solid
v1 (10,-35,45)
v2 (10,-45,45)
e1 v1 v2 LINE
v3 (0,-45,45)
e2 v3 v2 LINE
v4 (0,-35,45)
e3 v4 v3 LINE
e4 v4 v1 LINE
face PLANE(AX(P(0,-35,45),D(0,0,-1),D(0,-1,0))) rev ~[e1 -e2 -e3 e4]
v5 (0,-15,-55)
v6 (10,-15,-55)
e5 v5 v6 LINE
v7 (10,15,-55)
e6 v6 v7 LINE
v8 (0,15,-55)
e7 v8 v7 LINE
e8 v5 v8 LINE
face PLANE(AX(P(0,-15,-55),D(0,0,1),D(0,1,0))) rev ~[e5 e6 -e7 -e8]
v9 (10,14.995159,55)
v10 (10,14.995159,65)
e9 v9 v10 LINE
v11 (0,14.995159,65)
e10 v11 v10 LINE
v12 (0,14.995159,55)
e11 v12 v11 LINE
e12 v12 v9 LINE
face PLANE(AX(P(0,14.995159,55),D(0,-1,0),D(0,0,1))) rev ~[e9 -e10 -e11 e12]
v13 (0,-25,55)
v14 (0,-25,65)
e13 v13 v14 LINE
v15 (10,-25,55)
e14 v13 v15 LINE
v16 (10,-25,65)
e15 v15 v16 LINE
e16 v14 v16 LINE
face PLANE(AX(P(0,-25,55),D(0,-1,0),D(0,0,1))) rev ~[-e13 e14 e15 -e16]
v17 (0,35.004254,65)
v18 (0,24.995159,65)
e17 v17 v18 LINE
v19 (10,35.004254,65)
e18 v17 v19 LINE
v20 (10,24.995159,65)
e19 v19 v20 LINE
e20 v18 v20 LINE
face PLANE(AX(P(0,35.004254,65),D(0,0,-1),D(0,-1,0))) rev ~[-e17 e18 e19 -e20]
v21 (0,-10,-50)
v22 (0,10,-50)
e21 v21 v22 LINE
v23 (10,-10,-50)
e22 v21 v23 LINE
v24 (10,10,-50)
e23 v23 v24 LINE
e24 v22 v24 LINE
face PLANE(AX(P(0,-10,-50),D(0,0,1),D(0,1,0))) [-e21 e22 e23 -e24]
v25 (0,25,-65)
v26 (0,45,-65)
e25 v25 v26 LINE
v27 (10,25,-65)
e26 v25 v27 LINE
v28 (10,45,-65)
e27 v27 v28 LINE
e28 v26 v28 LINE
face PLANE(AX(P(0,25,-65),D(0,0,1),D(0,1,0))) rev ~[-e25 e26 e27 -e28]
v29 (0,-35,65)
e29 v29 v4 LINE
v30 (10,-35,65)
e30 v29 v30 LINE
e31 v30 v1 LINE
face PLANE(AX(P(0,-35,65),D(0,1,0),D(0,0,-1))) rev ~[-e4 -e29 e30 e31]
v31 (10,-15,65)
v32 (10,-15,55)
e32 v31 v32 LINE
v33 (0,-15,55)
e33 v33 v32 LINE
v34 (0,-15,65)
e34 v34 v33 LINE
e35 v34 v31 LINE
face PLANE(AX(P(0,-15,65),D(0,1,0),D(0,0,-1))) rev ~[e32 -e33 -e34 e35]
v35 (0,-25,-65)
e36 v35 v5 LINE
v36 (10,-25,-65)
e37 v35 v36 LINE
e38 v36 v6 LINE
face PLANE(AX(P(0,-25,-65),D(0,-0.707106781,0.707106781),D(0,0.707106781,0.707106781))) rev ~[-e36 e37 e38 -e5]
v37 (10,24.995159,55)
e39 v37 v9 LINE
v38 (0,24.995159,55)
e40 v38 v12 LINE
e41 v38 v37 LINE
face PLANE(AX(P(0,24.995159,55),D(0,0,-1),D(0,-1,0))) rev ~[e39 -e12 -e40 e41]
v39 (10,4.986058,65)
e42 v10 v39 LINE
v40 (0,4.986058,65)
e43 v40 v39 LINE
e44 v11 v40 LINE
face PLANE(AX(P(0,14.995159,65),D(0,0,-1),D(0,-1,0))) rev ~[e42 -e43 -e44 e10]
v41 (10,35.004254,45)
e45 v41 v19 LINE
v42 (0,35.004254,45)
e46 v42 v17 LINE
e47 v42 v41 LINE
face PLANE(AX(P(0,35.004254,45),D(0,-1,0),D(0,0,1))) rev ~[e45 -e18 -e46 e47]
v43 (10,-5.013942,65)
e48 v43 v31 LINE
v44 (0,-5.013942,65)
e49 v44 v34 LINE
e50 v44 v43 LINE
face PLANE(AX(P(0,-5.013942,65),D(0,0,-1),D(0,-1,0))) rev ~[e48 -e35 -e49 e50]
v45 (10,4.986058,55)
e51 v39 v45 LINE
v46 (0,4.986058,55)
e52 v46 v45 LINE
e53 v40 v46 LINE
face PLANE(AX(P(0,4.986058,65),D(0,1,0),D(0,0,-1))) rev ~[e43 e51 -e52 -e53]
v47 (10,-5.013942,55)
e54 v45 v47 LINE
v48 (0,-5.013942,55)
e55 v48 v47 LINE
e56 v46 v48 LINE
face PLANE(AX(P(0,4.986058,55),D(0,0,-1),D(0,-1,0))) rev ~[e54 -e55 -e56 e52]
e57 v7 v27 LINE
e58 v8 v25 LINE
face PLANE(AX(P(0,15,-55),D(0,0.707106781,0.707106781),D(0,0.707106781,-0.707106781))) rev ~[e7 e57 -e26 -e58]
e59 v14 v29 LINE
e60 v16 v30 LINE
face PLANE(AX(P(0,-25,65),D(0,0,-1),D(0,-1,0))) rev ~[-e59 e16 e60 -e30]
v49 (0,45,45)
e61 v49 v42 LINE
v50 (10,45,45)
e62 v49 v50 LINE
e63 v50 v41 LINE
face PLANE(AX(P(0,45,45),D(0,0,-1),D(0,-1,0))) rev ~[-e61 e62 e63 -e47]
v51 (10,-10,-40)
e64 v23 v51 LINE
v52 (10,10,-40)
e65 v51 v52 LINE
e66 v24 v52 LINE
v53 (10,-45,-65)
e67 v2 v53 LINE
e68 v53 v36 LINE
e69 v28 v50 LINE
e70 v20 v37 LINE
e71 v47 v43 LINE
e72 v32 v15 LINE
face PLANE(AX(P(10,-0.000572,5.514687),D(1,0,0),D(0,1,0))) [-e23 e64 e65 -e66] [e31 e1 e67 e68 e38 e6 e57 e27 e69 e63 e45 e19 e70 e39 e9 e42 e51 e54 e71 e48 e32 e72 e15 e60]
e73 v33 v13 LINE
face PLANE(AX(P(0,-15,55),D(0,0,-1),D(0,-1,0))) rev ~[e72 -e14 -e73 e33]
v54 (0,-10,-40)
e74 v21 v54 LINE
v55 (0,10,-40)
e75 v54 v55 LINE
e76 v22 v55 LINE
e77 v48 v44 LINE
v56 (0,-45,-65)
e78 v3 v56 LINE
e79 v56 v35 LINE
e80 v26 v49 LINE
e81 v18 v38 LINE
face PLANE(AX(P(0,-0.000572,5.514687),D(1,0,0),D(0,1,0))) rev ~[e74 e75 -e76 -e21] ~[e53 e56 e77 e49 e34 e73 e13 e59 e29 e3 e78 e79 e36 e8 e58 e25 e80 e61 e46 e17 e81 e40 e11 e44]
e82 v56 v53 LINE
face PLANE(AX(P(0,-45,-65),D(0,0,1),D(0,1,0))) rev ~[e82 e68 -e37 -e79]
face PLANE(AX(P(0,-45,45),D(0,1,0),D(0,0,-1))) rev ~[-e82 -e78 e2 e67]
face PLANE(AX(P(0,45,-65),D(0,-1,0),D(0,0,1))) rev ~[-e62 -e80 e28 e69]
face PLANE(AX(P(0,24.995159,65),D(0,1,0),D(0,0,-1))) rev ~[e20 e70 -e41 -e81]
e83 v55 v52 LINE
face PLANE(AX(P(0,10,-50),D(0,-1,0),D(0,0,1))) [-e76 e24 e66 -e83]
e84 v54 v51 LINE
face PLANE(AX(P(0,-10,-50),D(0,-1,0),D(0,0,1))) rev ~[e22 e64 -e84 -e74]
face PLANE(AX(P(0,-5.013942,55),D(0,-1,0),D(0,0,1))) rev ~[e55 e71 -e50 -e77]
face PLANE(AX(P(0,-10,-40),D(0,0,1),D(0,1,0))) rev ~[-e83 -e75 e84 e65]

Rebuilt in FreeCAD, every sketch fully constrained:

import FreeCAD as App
import Part
import Sketcher
from FreeCAD import Vector

doc = App.newDocument("Part")
params = doc.addObject("Spreadsheet::Sheet", "Params")
for row, (alias, value) in enumerate([
    ("sketch1_width", "20 mm"),
    ("sketch1_width2", "30 mm"),
    ("sketch1_height", "110 mm"),
    ("pad1_length", "10 mm"),
], start=1):
    params.set(f"A{row}", alias)
    params.set(f"B{row}", "=" + value)
    params.setAlias(f"B{row}", alias)

body = doc.addObject("PartDesign::Body", "Body")

sketch1 = doc.addObject("Sketcher::SketchObject", "Sketch")
body.addObject(sketch1)
sketch1.AttachmentSupport = (doc.YZ_Plane, [""])
sketch1.MapMode = "FlatFace"
sketch1.addGeometry([
    Part.LineSegment(Vector(25, -65, 0), Vector(45, -65, 0)),
    Part.LineSegment(Vector(45, -65, 0), Vector(45, 45, 0)),
    Part.LineSegment(Vector(45, 45, 0), Vector(35, 45, 0)),
    Part.LineSegment(Vector(35, 45, 0), Vector(35, 65, 0)),
    Part.LineSegment(Vector(35, 65, 0), Vector(25, 65, 0)),
    Part.LineSegment(Vector(25, 65, 0), Vector(25, 55, 0)),
    Part.LineSegment(Vector(25, 55, 0), Vector(15, 55, 0)),
    Part.LineSegment(Vector(15, 55, 0), Vector(15, 65, 0)),
    Part.LineSegment(Vector(15, 65, 0), Vector(5, 65, 0)),
    Part.LineSegment(Vector(5, 65, 0), Vector(5, 55, 0)),
    Part.LineSegment(Vector(5, 55, 0), Vector(-5, 55, 0)),
    Part.LineSegment(Vector(-5, 55, 0), Vector(-5, 65, 0)),
    Part.LineSegment(Vector(-5, 65, 0), Vector(-15, 65, 0)),
    Part.LineSegment(Vector(-15, 65, 0), Vector(-15, 55, 0)),
    Part.LineSegment(Vector(-15, 55, 0), Vector(-25, 55, 0)),
    Part.LineSegment(Vector(-25, 55, 0), Vector(-25, 65, 0)),
    Part.LineSegment(Vector(-25, 65, 0), Vector(-35, 65, 0)),
    Part.LineSegment(Vector(-35, 65, 0), Vector(-35, 45, 0)),
    Part.LineSegment(Vector(-35, 45, 0), Vector(-45, 45, 0)),
    Part.LineSegment(Vector(-45, 45, 0), Vector(-45, -65, 0)),
    Part.LineSegment(Vector(-45, -65, 0), Vector(-25, -65, 0)),
    Part.LineSegment(Vector(-25, -65, 0), Vector(-15, -55, 0)),
    Part.LineSegment(Vector(-15, -55, 0), Vector(15, -55, 0)),
    Part.LineSegment(Vector(15, -55, 0), Vector(25, -65, 0)),
    Part.LineSegment(Vector(10, -50, 0), Vector(-10, -50, 0)),
    Part.LineSegment(Vector(-10, -50, 0), Vector(-10, -40, 0)),
    Part.LineSegment(Vector(-10, -40, 0), Vector(10, -40, 0)),
    Part.LineSegment(Vector(10, -40, 0), Vector(10, -50, 0)),
], False)
sketch1.addConstraint([
    Sketcher.Constraint("Coincident", 0, 2, 1, 1),
    Sketcher.Constraint("Coincident", 1, 2, 2, 1),
    Sketcher.Constraint("Coincident", 2, 2, 3, 1),
    Sketcher.Constraint("Coincident", 3, 2, 4, 1),
    Sketcher.Constraint("Coincident", 4, 2, 5, 1),
    Sketcher.Constraint("Coincident", 5, 2, 6, 1),
    Sketcher.Constraint("Coincident", 6, 2, 7, 1),
    Sketcher.Constraint("Coincident", 7, 2, 8, 1),
    Sketcher.Constraint("Coincident", 8, 2, 9, 1),
    Sketcher.Constraint("Coincident", 9, 2, 10, 1),
    Sketcher.Constraint("Coincident", 10, 2, 11, 1),
    Sketcher.Constraint("Coincident", 11, 2, 12, 1),
    Sketcher.Constraint("Coincident", 12, 2, 13, 1),
    Sketcher.Constraint("Coincident", 13, 2, 14, 1),
    Sketcher.Constraint("Coincident", 14, 2, 15, 1),
    Sketcher.Constraint("Coincident", 15, 2, 16, 1),
    Sketcher.Constraint("Coincident", 16, 2, 17, 1),
    Sketcher.Constraint("Coincident", 17, 2, 18, 1),
    Sketcher.Constraint("Coincident", 18, 2, 19, 1),
    Sketcher.Constraint("Coincident", 19, 2, 20, 1),
    Sketcher.Constraint("Coincident", 20, 2, 21, 1),
    Sketcher.Constraint("Coincident", 21, 2, 22, 1),
    Sketcher.Constraint("Coincident", 22, 2, 23, 1),
    Sketcher.Constraint("Coincident", 23, 2, 0, 1),
    Sketcher.Constraint("Coincident", 24, 2, 25, 1),
    Sketcher.Constraint("Coincident", 25, 2, 26, 1),
    Sketcher.Constraint("Coincident", 26, 2, 27, 1),
    Sketcher.Constraint("Coincident", 27, 2, 24, 1),
    Sketcher.Constraint("Horizontal", 0),
    Sketcher.Constraint("Vertical", 1),
    Sketcher.Constraint("Horizontal", 2),
    Sketcher.Constraint("Vertical", 3),
    Sketcher.Constraint("Horizontal", 4),
    Sketcher.Constraint("Vertical", 5),
    Sketcher.Constraint("Horizontal", 6),
    Sketcher.Constraint("Vertical", 7),
    Sketcher.Constraint("Horizontal", 8),
    Sketcher.Constraint("Vertical", 9),
    Sketcher.Constraint("Horizontal", 10),
    Sketcher.Constraint("Vertical", 11),
    Sketcher.Constraint("Horizontal", 12),
    Sketcher.Constraint("Vertical", 13),
    Sketcher.Constraint("Horizontal", 14),
    Sketcher.Constraint("Vertical", 15),
    Sketcher.Constraint("Horizontal", 16),
    Sketcher.Constraint("Vertical", 17),
    Sketcher.Constraint("Horizontal", 18),
    Sketcher.Constraint("Vertical", 19),
    Sketcher.Constraint("Horizontal", 20),
    Sketcher.Constraint("Horizontal", 22),
    Sketcher.Constraint("Horizontal", 24),
    Sketcher.Constraint("Vertical", 25),
    Sketcher.Constraint("Horizontal", 26),
    Sketcher.Constraint("Vertical", 27),
    Sketcher.Constraint("Symmetric", 13, 2, 22, 2, -1, 1),
    Sketcher.Constraint("Symmetric", 15, 2, 23, 2, -1, 1),
    Sketcher.Constraint("Symmetric", 1, 2, 18, 2, -2),
    Sketcher.Constraint("Symmetric", 20, 2, 23, 2, -2),
    Sketcher.Constraint("Perpendicular", 21, 23),
    Sketcher.Constraint("Horizontal", 4, 2, 7, 2),
    Sketcher.Constraint("Horizontal", 6, 2, 9, 2),
    Sketcher.Constraint("Horizontal", 8, 2, 11, 2),
    Sketcher.Constraint("Horizontal", 10, 2, 13, 2),
    Sketcher.Constraint("Horizontal", 12, 2, 15, 2),
    Sketcher.Constraint("Vertical", 13, 2, 21, 2),
    Sketcher.Constraint("Equal", 6, 10),
    Sketcher.Constraint("Equal", 10, 14),
    Sketcher.Constraint("Equal", 14, 16),
    Sketcher.Constraint("Equal", 16, 18),
    Sketcher.Constraint("Equal", 20, 24),
    Sketcher.Constraint("Equal", 26, 3),
    Sketcher.Constraint("Equal", 15, 25),
    Sketcher.Constraint("DistanceX", 0, 1, 0, 2, 20.0),
    Sketcher.Constraint("DistanceX", 22, 1, 22, 2, 30.0),
    Sketcher.Constraint("DistanceY", 1, 1, 1, 2, 110.0),
    Sketcher.Constraint("DistanceX", 24, 2, -1, 1, 10.0),
    Sketcher.Constraint("DistanceY", 24, 2, -1, 1, 50.0),
    Sketcher.Constraint("DistanceX", 8, 2, 8, 1, 10.009101),
    Sketcher.Constraint("DistanceX", 2, 2, 2, 1, 9.995746),
    Sketcher.Constraint("DistanceX", 4, 2, 4, 1, 10.009095),
])
sketch1.setExpression("Constraints[72]", "Params.sketch1_width")
sketch1.setExpression("Constraints[73]", "Params.sketch1_width2")
sketch1.setExpression("Constraints[74]", "Params.sketch1_height")
pad1 = doc.addObject("PartDesign::Pad", "Pad")
body.addObject(pad1)
pad1.Profile = sketch1
pad1.setExpression("Length", "Params.pad1_length")

doc.recompute()
